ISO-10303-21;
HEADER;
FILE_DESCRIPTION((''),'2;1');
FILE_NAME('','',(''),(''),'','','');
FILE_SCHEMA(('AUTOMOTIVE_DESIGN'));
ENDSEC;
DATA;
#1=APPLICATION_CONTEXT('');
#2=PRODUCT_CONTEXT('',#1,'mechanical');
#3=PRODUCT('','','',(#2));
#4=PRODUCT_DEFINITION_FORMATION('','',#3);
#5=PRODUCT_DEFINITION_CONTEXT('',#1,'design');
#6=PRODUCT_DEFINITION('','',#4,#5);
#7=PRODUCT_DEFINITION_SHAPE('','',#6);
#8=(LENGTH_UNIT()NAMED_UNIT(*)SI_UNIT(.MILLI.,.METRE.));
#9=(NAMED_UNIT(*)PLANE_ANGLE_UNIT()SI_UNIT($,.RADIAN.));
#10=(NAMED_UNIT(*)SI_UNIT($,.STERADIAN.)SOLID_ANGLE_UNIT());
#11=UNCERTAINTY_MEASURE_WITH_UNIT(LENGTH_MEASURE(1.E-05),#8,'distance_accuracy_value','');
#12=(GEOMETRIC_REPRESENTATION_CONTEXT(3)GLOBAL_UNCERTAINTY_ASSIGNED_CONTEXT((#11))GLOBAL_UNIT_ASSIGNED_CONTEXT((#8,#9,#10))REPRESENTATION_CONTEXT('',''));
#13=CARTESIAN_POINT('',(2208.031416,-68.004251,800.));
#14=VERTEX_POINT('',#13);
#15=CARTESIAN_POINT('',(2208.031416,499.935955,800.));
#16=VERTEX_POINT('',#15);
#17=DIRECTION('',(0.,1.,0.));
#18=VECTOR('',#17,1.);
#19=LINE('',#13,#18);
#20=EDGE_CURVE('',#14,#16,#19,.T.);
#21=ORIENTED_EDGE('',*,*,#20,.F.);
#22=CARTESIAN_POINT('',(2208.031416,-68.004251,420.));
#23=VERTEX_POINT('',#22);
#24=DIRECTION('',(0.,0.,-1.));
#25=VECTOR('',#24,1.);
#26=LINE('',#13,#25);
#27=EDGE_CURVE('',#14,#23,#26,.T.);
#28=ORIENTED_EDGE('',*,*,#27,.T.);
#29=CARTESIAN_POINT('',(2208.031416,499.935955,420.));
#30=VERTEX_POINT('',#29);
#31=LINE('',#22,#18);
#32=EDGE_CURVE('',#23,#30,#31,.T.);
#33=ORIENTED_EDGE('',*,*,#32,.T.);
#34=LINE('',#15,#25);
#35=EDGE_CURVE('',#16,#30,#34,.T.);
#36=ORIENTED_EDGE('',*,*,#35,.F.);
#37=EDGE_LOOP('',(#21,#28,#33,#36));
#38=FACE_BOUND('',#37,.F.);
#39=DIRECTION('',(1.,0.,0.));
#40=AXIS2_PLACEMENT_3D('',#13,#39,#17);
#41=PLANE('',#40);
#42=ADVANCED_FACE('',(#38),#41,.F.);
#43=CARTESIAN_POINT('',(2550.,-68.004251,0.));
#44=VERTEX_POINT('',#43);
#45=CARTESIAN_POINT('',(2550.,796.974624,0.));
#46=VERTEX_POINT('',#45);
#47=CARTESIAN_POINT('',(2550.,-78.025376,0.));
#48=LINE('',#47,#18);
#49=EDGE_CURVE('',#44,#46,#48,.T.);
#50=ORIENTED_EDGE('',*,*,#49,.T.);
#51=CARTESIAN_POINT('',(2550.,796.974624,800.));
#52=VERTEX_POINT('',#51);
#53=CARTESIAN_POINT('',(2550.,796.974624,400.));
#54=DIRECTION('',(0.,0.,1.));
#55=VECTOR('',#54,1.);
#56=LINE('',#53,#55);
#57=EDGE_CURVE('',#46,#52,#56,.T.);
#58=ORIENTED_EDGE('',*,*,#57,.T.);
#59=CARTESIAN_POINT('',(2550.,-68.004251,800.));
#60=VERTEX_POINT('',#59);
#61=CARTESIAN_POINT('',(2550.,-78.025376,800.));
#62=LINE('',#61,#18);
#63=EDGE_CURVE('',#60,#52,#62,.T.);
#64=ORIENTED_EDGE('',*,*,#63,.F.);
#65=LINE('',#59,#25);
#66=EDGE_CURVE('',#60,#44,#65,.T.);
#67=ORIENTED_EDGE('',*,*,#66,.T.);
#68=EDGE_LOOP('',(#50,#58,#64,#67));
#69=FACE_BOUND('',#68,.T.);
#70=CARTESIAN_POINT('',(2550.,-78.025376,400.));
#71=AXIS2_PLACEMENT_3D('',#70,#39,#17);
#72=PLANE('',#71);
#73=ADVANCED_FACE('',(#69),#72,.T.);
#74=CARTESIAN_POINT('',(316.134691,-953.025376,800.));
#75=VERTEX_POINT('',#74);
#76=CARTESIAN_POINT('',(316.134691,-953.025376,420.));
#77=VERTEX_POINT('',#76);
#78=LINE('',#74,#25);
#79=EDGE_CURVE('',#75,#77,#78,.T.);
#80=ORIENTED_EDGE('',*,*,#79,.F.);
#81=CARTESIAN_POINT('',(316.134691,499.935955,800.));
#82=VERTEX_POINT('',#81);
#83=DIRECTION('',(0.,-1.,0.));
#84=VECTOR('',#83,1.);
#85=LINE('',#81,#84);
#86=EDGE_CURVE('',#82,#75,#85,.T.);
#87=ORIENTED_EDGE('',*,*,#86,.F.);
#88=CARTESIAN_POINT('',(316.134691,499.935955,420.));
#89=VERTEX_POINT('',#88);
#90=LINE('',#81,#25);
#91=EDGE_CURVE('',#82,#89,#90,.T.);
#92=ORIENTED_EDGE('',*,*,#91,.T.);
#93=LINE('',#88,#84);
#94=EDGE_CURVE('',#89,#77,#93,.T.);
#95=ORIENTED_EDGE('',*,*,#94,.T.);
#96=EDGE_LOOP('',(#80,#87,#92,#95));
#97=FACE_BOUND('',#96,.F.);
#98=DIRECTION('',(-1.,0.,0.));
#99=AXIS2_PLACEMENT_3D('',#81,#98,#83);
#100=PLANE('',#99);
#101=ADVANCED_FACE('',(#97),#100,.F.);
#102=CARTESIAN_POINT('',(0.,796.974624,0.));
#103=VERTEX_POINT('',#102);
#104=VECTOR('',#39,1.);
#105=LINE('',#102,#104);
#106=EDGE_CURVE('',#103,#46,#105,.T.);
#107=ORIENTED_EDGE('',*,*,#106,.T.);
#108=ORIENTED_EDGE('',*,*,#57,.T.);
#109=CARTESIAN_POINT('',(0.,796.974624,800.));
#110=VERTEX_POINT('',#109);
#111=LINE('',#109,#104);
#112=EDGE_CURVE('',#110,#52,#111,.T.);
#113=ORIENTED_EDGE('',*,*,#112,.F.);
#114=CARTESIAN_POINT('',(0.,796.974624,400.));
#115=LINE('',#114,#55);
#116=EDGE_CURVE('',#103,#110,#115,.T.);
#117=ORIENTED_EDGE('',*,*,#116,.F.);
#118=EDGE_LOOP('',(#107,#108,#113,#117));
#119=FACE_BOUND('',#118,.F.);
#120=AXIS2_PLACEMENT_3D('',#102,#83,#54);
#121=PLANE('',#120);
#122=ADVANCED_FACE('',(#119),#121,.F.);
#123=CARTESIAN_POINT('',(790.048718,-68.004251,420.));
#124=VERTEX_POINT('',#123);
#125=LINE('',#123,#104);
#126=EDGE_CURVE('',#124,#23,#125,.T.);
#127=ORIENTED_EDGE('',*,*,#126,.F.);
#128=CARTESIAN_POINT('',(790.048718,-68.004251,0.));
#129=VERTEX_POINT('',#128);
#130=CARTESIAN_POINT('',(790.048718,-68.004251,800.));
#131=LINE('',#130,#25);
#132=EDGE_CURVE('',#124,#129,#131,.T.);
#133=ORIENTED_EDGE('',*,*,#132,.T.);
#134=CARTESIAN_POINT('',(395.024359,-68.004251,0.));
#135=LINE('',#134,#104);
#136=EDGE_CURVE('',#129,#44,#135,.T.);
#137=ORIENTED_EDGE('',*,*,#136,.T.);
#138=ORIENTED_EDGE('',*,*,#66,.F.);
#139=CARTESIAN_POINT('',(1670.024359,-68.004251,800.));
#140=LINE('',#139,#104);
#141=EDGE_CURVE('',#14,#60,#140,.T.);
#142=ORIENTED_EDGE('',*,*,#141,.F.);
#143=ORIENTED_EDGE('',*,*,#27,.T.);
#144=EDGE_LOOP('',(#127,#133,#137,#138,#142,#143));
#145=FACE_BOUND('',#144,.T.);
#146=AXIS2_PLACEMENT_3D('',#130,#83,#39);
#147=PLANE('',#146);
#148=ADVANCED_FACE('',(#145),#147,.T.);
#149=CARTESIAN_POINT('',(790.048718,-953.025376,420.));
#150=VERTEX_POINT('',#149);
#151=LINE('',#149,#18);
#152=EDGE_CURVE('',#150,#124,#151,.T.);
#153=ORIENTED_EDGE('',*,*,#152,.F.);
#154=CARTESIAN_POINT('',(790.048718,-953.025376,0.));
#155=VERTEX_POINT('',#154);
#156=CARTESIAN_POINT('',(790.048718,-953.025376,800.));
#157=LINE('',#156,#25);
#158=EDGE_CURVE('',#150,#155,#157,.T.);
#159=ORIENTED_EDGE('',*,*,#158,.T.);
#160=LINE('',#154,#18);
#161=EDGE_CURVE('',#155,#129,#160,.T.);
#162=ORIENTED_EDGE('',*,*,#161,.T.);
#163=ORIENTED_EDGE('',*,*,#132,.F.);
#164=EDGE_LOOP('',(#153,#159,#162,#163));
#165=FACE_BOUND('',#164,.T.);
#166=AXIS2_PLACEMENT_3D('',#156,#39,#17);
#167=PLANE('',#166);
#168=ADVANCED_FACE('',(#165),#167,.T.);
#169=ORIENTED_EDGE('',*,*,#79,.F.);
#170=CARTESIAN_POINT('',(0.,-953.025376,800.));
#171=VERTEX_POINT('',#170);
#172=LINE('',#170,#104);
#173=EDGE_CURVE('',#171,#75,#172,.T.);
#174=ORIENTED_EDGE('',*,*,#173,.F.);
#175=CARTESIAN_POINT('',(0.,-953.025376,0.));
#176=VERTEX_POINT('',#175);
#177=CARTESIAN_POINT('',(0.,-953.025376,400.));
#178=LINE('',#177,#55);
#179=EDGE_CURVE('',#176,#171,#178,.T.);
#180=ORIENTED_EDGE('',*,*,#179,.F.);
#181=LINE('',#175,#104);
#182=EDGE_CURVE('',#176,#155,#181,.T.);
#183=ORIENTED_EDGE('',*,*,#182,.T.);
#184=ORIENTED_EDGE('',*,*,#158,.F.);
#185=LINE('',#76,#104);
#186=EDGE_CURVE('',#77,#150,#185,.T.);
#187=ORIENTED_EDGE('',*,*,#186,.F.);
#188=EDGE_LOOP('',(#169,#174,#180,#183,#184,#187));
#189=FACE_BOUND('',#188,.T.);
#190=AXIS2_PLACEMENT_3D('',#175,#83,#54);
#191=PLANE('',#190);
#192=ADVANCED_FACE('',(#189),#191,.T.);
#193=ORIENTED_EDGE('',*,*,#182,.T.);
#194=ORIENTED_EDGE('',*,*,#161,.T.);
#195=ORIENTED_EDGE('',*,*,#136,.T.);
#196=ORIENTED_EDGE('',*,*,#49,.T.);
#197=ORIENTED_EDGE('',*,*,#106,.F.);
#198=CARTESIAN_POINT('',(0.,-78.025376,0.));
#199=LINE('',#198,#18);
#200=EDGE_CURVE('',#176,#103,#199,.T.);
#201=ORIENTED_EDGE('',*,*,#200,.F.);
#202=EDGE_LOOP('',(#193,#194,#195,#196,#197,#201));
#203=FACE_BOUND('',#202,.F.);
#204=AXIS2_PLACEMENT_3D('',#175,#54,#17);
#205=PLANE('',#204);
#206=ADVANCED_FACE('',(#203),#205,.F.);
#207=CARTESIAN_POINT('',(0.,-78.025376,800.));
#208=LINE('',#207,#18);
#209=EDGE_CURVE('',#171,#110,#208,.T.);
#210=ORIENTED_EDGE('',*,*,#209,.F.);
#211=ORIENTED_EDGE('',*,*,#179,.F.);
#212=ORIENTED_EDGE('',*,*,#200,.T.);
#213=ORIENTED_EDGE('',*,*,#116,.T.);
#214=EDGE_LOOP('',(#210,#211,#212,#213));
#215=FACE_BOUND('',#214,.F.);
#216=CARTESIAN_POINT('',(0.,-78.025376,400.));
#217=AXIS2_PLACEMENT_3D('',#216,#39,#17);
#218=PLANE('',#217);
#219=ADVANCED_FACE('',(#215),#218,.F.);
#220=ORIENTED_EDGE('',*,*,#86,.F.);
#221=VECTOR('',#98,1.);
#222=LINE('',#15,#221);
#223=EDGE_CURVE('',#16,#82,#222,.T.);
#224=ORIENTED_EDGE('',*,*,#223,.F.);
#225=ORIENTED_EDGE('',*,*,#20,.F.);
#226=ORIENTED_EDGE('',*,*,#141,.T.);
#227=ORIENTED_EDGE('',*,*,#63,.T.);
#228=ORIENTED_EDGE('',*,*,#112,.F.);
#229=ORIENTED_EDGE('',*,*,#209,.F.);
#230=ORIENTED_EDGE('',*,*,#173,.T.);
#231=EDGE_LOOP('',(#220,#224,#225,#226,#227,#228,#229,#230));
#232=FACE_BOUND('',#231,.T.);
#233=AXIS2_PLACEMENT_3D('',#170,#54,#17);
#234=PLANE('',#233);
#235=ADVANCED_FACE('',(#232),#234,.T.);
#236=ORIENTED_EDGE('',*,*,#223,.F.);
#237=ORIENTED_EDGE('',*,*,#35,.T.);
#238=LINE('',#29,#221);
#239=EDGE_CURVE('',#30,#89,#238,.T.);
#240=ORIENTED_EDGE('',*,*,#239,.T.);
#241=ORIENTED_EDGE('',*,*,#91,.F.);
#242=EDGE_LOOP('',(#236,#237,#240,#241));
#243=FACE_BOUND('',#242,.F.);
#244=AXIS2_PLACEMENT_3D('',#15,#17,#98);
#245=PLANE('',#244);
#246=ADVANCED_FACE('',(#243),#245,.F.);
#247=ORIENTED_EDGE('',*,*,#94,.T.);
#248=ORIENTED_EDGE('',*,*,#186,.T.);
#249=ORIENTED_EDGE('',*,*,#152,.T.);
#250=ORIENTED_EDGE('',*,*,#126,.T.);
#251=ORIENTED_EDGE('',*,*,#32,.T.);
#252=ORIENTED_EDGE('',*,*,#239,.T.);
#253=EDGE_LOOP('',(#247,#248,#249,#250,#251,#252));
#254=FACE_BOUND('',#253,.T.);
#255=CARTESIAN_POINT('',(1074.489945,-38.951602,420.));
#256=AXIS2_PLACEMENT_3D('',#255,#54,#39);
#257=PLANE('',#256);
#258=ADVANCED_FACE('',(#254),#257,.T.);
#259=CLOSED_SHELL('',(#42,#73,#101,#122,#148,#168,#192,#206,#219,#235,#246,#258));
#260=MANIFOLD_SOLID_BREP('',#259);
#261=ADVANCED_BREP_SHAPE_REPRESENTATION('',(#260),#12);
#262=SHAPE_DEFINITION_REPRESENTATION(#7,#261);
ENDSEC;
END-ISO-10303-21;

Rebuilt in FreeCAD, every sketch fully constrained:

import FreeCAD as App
import Part
import Sketcher

V = App.Vector

doc = App.newDocument("Part")
params = doc.addObject("Spreadsheet::Sheet", "Params")
for row, (alias, value) in enumerate([
    ("sketch1_width", "1750 mm"),
    ("sketch1_height", "800 mm"),
    ("pad1_length", "2550 mm"),
    ("pocket1_length", "940 mm"),
    ("pocket2_length", "380 mm"),
], start=1):
    params.set(f"A{row}", alias)
    params.set(f"B{row}", "=" + value)
    params.setAlias(f"B{row}", alias)

body = doc.addObject("PartDesign::Body", "Body")

# Sketch on YZ plane
sketch1 = body.newObject("Sketcher::SketchObject", "Sketch")
sketch1.AttachmentSupport = (doc.getObject("YZ_Plane"), [""])
sketch1.MapMode = "FlatFace"
sketch1.addGeometry(Part.LineSegment(V(-953, 800, 0), V(-953, 0, 0)), False)
sketch1.addGeometry(Part.LineSegment(V(-953, 0, 0), V(797, 0, 0)), False)
sketch1.addGeometry(Part.LineSegment(V(797, 0, 0), V(797, 800, 0)), False)
sketch1.addGeometry(Part.LineSegment(V(797, 800, 0), V(-953, 800, 0)), False)
sketch1.addConstraint(Sketcher.Constraint("Coincident", 0, 2, 1, 1))
sketch1.addConstraint(Sketcher.Constraint("Coincident", 1, 2, 2, 1))
sketch1.addConstraint(Sketcher.Constraint("Coincident", 2, 2, 3, 1))
sketch1.addConstraint(Sketcher.Constraint("Coincident", 3, 2, 0, 1))
sketch1.addConstraint(Sketcher.Constraint("Vertical", 0))
sketch1.addConstraint(Sketcher.Constraint("Horizontal", 1))
sketch1.addConstraint(Sketcher.Constraint("Vertical", 2))
sketch1.addConstraint(Sketcher.Constraint("Horizontal", 3))
sketch1.addConstraint(Sketcher.Constraint("PointOnObject", 0, 2, -1))
sketch1.addConstraint(Sketcher.Constraint("DistanceX", 1, 1, 1, 2, 1750.0))
sketch1.addConstraint(Sketcher.Constraint("DistanceY", 0, 2, 0, 1, 800.0))
sketch1.addConstraint(Sketcher.Constraint("DistanceX", 0, 2, -1, 1, 953.025376))
sketch1.setExpression("Constraints[9]", "Params.sketch1_width")
sketch1.setExpression("Constraints[10]", "Params.sketch1_height")
pad1 = body.newObject("PartDesign::Pad", "Pad")
pad1.Profile = sketch1
pad1.setExpression("Length", "Params.pad1_length")

# Sketch on XY plane
sketch2 = body.newObject("Sketcher::SketchObject", "Sketch001")
sketch2.AttachmentSupport = (doc.getObject("XY_Plane"), [""])
sketch2.MapMode = "FlatFace"
sketch2.AttachmentOffset = App.Placement(V(0, 0, 800), App.Rotation())
sketch2.addGeometry(Part.LineSegment(V(790, -68, 0), V(790, -953, 0)), False)
sketch2.addGeometry(Part.LineSegment(V(790, -953, 0), V(2550, -953, 0)), False)
sketch2.addGeometry(Part.LineSegment(V(2550, -953, 0), V(2550, -68, 0)), False)
sketch2.addGeometry(Part.LineSegment(V(2550, -68, 0), V(790, -68, 0)), False)
sketch2.addConstraint(Sketcher.Constraint("Coincident", 0, 2, 1, 1))
sketch2.addConstraint(Sketcher.Constraint("Coincident", 1, 2, 2, 1))
sketch2.addConstraint(Sketcher.Constraint("Coincident", 2, 2, 3, 1))
sketch2.addConstraint(Sketcher.Constraint("Coincident", 3, 2, 0, 1))
sketch2.addConstraint(Sketcher.Constraint("Vertical", 0))
sketch2.addConstraint(Sketcher.Constraint("Horizontal", 1))
sketch2.addConstraint(Sketcher.Constraint("Vertical", 2))
sketch2.addConstraint(Sketcher.Constraint("Horizontal", 3))
sketch2.addConstraint(Sketcher.Constraint("DistanceX", -1, 1, 1, 2, 2550.0))
sketch2.addConstraint(Sketcher.Constraint("DistanceX", 1, 1, 1, 2, 1759.951282))
sketch2.addConstraint(Sketcher.Constraint("DistanceY", 0, 2, 0, 1, 885.021125))
sketch2.addConstraint(Sketcher.Constraint("DistanceY", 2, 2, -1, 1, 68.004251))
pocket1 = body.newObject("PartDesign::Pocket", "Pocket")
pocket1.Profile = sketch2
pocket1.setExpression("Length", "Params.pocket1_length")

# Sketch on XY plane
sketch3 = body.newObject("Sketcher::SketchObject", "Sketch002")
sketch3.AttachmentSupport = (doc.getObject("XY_Plane"), [""])
sketch3.MapMode = "FlatFace"
sketch3.AttachmentOffset = App.Placement(V(0, 0, 800), App.Rotation())
sketch3.addGeometry(Part.LineSegment(V(2208, -68, 0), V(2208, 500, 0)), False)
sketch3.addGeometry(Part.LineSegment(V(2208, 500, 0), V(316, 500, 0)), False)
sketch3.addGeometry(Part.LineSegment(V(316, 500, 0), V(316, -953, 0)), False)
sketch3.addGeometry(Part.LineSegment(V(316, -953, 0), V(790, -953, 0)), False)
sketch3.addGeometry(Part.LineSegment(V(790, -953, 0), V(790, -68, 0)), False)
sketch3.addGeometry(Part.LineSegment(V(790, -68, 0), V(2208, -68, 0)), False)
sketch3.addConstraint(Sketcher.Constraint("Coincident", 0, 2, 1, 1))
sketch3.addConstraint(Sketcher.Constraint("Coincident", 1, 2, 2, 1))
sketch3.addConstraint(Sketcher.Constraint("Coincident", 2, 2, 3, 1))
sketch3.addConstraint(Sketcher.Constraint("Coincident", 3, 2, 4, 1))
sketch3.addConstraint(Sketcher.Constraint("Coincident", 4, 2, 5, 1))
sketch3.addConstraint(Sketcher.Constraint("Coincident", 5, 2, 0, 1))
sketch3.addConstraint(Sketcher.Constraint("Vertical", 0))
sketch3.addConstraint(Sketcher.Constraint("Horizontal", 1))
sketch3.addConstraint(Sketcher.Constraint("Vertical", 2))
sketch3.addConstraint(Sketcher.Constraint("Horizontal", 3))
sketch3.addConstraint(Sketcher.Constraint("Vertical", 4))
sketch3.addConstraint(Sketcher.Constraint("Horizontal", 5))
sketch3.addConstraint(Sketcher.Constraint("DistanceY", 2, 2, 2, 1, 1452.96133))
sketch3.addConstraint(Sketcher.Constraint("DistanceX", 1, 2, 1, 1, 1891.896725))
sketch3.addConstraint(Sketcher.Constraint("DistanceX", 3, 1, 3, 2, 473.914027))
sketch3.addConstraint(Sketcher.Constraint("DistanceY", 0, 1, 0, 2, 567.940205))
sketch3.addConstraint(Sketcher.Constraint("DistanceX", -1, 1, 1, 2, 316.134691))
sketch3.addConstraint(Sketcher.Constraint("DistanceY", 4, 2, -1, 1, 68.004251))
pocket2 = body.newObject("PartDesign::Pocket", "Pocket001")
pocket2.Profile = sketch3
pocket2.setExpression("Length", "Params.pocket2_length")

doc.recompute()
